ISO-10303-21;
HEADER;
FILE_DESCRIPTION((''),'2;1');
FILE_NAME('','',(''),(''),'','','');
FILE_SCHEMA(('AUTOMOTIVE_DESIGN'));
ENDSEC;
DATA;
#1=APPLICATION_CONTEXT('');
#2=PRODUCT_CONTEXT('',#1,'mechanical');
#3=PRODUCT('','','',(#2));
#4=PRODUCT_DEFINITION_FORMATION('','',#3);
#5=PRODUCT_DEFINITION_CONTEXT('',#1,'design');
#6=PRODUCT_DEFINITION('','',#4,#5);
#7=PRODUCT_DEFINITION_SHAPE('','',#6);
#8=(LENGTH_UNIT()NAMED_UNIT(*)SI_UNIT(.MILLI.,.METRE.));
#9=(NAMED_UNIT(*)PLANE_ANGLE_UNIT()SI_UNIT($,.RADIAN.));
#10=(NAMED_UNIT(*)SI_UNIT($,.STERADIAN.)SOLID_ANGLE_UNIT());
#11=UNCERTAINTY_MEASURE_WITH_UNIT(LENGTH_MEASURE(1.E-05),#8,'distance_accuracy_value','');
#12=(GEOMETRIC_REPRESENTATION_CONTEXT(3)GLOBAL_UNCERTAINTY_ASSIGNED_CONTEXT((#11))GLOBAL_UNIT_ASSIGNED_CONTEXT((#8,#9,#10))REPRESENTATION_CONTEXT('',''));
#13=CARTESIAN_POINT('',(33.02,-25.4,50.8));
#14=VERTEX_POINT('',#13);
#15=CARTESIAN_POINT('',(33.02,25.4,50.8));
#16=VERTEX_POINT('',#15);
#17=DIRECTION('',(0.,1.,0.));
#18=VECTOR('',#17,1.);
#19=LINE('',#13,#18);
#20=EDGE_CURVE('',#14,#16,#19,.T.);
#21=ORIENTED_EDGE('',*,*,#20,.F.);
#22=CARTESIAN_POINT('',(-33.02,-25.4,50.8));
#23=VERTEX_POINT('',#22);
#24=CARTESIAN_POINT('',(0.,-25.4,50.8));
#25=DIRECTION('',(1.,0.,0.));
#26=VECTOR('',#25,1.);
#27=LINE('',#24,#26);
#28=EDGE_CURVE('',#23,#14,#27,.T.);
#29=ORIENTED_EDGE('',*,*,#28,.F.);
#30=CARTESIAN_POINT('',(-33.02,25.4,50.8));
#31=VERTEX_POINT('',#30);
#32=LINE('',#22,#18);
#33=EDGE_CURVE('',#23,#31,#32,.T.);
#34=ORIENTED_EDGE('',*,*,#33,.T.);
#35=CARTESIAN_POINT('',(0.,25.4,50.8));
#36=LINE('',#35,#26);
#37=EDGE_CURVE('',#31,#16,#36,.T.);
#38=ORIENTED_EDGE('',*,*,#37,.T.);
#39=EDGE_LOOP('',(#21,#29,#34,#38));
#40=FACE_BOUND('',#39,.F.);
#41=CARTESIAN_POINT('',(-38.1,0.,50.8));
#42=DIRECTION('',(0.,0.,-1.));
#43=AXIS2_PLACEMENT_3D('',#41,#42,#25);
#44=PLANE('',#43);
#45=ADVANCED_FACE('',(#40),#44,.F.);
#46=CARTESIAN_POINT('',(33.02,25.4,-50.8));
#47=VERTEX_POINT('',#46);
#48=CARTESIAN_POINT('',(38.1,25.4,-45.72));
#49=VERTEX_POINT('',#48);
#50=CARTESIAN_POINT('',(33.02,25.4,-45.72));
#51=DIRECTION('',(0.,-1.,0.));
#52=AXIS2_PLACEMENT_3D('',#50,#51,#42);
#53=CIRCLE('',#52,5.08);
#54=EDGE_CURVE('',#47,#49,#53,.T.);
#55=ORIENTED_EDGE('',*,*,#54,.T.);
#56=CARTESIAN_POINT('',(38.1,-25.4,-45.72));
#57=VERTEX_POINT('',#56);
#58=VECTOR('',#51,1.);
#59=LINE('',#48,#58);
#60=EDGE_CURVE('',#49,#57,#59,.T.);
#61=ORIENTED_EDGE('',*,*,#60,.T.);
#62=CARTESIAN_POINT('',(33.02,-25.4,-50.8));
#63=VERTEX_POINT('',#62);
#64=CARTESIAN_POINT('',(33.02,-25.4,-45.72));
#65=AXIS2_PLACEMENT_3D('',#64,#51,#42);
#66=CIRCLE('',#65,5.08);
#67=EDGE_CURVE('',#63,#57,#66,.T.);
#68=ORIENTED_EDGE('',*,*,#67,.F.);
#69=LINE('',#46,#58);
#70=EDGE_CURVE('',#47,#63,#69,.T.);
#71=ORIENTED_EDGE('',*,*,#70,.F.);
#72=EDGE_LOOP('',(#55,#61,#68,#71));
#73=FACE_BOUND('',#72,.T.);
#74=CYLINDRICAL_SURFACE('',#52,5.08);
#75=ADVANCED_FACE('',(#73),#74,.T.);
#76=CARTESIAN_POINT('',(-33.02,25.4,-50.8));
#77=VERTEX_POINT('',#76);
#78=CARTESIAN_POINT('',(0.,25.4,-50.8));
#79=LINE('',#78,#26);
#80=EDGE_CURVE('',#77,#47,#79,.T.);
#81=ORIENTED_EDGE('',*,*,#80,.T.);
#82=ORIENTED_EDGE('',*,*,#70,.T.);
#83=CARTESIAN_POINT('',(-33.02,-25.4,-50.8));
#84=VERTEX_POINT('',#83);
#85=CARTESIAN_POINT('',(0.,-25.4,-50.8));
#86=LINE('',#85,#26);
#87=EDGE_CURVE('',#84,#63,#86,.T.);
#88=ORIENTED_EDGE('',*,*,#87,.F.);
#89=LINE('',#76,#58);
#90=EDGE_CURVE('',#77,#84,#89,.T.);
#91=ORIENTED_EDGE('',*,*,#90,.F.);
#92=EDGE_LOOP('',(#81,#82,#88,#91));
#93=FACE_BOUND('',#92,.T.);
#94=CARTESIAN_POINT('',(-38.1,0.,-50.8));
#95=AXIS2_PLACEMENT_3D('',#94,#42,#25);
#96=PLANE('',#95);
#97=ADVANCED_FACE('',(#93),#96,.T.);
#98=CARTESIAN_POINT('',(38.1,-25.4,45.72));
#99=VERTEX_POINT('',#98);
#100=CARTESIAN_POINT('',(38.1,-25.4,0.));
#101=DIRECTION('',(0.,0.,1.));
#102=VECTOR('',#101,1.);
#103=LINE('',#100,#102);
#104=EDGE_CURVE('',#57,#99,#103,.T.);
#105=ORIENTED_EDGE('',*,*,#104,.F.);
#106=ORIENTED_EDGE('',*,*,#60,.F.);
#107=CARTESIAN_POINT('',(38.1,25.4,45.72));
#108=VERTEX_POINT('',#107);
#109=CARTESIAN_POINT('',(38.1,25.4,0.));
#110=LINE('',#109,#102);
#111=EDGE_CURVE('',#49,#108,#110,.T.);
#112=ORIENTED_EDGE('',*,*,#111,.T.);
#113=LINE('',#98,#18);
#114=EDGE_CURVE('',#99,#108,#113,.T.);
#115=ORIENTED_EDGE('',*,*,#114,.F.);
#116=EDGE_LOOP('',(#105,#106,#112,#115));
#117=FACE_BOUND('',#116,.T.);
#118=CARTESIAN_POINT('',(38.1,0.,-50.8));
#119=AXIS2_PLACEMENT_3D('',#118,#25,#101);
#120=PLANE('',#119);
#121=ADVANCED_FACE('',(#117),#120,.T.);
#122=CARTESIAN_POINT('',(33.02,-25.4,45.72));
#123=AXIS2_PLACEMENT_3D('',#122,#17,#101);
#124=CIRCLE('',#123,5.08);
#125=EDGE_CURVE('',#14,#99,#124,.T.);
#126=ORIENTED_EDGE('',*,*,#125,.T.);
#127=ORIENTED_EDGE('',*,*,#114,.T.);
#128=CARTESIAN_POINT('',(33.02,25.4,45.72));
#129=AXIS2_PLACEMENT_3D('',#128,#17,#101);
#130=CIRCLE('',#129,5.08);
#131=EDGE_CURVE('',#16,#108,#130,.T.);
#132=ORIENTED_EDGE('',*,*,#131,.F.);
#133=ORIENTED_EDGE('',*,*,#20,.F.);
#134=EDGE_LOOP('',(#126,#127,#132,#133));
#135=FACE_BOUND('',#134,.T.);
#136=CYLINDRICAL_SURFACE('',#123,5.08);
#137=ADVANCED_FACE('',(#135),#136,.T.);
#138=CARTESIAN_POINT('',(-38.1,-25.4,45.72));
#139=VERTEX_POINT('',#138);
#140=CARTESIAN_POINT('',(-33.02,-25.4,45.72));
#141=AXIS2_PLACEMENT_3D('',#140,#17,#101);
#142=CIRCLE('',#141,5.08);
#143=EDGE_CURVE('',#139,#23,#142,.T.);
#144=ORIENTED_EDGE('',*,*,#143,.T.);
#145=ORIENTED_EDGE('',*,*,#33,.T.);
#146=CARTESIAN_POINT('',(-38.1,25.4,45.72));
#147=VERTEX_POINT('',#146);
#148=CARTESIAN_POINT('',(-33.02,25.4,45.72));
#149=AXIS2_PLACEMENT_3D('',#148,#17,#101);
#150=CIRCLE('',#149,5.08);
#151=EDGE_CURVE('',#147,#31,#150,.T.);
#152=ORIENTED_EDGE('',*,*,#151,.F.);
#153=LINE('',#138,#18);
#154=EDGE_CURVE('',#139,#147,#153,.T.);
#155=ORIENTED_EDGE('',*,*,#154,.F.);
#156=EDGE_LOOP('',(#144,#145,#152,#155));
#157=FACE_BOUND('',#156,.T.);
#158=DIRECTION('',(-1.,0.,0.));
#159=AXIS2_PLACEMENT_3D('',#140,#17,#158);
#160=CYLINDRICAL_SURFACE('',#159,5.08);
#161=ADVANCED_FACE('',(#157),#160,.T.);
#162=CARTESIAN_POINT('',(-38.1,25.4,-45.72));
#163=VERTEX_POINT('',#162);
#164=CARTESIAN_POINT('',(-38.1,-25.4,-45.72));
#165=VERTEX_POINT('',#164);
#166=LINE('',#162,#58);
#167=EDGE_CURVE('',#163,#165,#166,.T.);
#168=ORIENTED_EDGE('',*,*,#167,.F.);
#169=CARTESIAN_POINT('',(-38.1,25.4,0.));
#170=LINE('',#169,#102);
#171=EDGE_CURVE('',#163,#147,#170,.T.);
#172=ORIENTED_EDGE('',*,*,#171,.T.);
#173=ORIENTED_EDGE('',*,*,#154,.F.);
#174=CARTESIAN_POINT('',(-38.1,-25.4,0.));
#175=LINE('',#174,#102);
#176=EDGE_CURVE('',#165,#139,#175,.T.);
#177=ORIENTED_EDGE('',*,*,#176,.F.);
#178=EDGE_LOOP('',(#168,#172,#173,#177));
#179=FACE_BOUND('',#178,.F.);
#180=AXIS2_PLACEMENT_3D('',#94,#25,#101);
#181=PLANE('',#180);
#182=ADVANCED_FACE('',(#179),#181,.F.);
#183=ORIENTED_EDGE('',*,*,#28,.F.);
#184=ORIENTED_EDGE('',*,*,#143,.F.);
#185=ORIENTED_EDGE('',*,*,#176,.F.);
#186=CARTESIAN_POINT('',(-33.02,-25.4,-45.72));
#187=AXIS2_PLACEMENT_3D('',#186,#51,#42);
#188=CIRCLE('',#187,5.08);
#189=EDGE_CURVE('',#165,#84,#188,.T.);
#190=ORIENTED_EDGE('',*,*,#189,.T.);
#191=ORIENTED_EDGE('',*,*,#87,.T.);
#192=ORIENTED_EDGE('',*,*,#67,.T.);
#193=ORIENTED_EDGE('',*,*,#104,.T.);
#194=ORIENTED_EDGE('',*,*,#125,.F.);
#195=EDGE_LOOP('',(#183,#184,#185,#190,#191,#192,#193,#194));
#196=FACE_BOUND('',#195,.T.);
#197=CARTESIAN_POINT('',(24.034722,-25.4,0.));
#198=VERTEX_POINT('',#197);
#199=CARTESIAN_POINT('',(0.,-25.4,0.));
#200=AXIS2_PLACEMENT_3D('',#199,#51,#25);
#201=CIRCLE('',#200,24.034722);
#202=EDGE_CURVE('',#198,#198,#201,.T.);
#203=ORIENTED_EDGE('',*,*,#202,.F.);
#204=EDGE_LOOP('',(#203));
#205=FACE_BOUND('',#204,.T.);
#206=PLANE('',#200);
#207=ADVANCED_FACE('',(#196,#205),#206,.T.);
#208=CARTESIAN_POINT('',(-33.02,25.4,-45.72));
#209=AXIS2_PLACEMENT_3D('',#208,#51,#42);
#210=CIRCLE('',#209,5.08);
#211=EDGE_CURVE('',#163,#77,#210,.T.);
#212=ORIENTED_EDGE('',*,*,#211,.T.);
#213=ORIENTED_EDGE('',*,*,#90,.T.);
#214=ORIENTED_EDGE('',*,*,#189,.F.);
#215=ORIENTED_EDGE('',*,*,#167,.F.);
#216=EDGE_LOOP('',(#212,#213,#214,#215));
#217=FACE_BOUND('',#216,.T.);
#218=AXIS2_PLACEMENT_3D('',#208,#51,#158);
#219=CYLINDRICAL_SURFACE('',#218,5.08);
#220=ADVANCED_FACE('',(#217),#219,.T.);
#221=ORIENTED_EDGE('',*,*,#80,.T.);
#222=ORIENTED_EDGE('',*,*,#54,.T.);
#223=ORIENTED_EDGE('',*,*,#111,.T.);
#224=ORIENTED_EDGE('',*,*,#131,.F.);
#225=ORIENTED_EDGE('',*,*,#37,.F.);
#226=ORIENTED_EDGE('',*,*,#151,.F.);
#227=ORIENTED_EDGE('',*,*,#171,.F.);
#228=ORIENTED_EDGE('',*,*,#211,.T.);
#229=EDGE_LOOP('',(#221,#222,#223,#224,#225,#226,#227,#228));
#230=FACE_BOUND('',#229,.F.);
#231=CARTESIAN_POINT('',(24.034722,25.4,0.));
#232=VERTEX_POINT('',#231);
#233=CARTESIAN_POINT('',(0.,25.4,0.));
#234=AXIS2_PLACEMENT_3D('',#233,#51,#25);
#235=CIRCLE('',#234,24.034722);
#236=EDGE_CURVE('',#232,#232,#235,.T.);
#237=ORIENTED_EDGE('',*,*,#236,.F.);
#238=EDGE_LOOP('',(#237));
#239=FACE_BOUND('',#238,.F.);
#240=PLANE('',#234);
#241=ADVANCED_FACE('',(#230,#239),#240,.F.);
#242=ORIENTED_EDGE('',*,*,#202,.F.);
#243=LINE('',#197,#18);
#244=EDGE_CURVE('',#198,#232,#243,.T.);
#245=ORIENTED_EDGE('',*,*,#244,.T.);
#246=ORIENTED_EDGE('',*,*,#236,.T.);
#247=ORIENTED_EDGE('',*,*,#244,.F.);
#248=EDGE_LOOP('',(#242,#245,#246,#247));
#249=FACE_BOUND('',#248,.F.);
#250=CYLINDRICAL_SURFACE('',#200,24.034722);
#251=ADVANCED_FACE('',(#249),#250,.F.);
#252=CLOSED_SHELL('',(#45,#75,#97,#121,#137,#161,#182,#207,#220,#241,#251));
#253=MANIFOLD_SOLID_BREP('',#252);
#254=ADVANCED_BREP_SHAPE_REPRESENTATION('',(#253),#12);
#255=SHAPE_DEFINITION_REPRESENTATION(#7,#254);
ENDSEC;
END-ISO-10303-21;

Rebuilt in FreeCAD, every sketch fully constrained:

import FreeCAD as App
import Part
import Sketcher

V = App.Vector
Q = App.Units.Quantity


def edges_at(feature, points):
    """Names of the edges that pass closest to the given points."""
    edges = feature.Shape.Edges
    near = lambda p: min(range(len(edges)), key=lambda i: edges[i].distToShape(Part.Vertex(*p))[0])
    return sorted({f"Edge{near(p) + 1}" for p in points})

doc = App.newDocument("Part")
params = doc.addObject("Spreadsheet::Sheet", "Params")
for row, (alias, value) in enumerate([
    ("sketch1_width", "3 in"),
    ("sketch1_height", "4 in"),
    ("pad1_length", "2 in"),
    ("fillet_radius", "0.2 in"),
], start=1):
    params.set(f"A{row}", alias)
    params.set(f"B{row}", "=" + value)
    params.setAlias(f"B{row}", alias)

body = doc.addObject("PartDesign::Body", "Body")

# Sketch on XZ plane
sketch1 = body.newObject("Sketcher::SketchObject", "Sketch")
sketch1.AttachmentSupport = (doc.getObject("XZ_Plane"), [""])
sketch1.MapMode = "FlatFace"
sketch1.addGeometry(Part.LineSegment(V(-38.1, 50.8, 0), V(-38.1, -50.8, 0)), False)
sketch1.addGeometry(Part.LineSegment(V(-38.1, -50.8, 0), V(38.1, -50.8, 0)), False)
sketch1.addGeometry(Part.LineSegment(V(38.1, -50.8, 0), V(38.1, 50.8, 0)), False)
sketch1.addGeometry(Part.LineSegment(V(38.1, 50.8, 0), V(-38.1, 50.8, 0)), False)
sketch1.addConstraint(Sketcher.Constraint("Coincident", 0, 2, 1, 1))
sketch1.addConstraint(Sketcher.Constraint("Coincident", 1, 2, 2, 1))
sketch1.addConstraint(Sketcher.Constraint("Coincident", 2, 2, 3, 1))
sketch1.addConstraint(Sketcher.Constraint("Coincident", 3, 2, 0, 1))
sketch1.addConstraint(Sketcher.Constraint("Vertical", 0))
sketch1.addConstraint(Sketcher.Constraint("Horizontal", 1))
sketch1.addConstraint(Sketcher.Constraint("Vertical", 2))
sketch1.addConstraint(Sketcher.Constraint("Horizontal", 3))
sketch1.addConstraint(Sketcher.Constraint("Symmetric", 0, 2, 2, 2, -1, 1))
sketch1.addConstraint(Sketcher.Constraint("DistanceX", 1, 1, 1, 2, Q("3 in")))
sketch1.addConstraint(Sketcher.Constraint("DistanceY", 0, 2, 0, 1, Q("4 in")))
sketch1.setExpression("Constraints[9]", "Params.sketch1_width")
sketch1.setExpression("Constraints[10]", "Params.sketch1_height")
pad1 = body.newObject("PartDesign::Pad", "Pad")
pad1.Profile = sketch1
pad1.setExpression("Length", "Params.pad1_length")
pad1.Midplane = True

# Sketch on XZ plane
sketch2 = body.newObject("Sketcher::SketchObject", "Sketch001")
sketch2.AttachmentSupport = (doc.getObject("XZ_Plane"), [""])
sketch2.MapMode = "FlatFace"
sketch2.AttachmentOffset = App.Placement(V(0, 0, 1 * 25.4), App.Rotation())
sketch2.addGeometry(Part.Circle(V(0, 0, 0), V(0, 0, 1), 24.034722), False)
sketch2.addConstraint(Sketcher.Constraint("Coincident", 0, 3, -1, 1))
sketch2.addConstraint(Sketcher.Constraint("Diameter", 0, Q("48.069444 mm")))
pocket1 = body.newObject("PartDesign::Pocket", "Pocket")
pocket1.Profile = sketch2
pocket1.Type = "ThroughAll"
doc.recompute()

fillet = body.newObject("PartDesign::Fillet", "Fillet")
fillet.Base = (pocket1, edges_at(pocket1, [
    (-38.1, 0, 50.8),
    (38.1, 0, 50.8),
    (38.1, 0, -50.8),
    (-38.1, 0, -50.8),
]))
fillet.setExpression("Radius", "Params.fillet_radius")

doc.recompute()
